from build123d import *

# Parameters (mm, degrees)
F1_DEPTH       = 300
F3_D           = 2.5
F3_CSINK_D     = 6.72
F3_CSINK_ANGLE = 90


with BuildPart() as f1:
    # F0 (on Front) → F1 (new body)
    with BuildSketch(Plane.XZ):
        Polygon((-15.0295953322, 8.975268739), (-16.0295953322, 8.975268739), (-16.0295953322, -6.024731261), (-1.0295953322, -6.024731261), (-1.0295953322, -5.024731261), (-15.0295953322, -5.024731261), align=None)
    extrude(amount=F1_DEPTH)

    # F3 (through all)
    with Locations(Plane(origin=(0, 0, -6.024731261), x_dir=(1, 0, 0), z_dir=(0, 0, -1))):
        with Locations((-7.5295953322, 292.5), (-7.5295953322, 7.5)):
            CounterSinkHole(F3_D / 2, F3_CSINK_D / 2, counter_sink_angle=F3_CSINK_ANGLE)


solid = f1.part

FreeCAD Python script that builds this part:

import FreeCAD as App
import Part
import Sketcher

V = App.Vector
Q = App.Units.Quantity


def add_polygon(sketch, points):
    """Adds a closed chain of lines whose ends are joined by coincident constraints."""
    first, n = sketch.GeometryCount, len(points)
    for a, b in zip(points, points[1:] + points[:1]):
        sketch.addGeometry(Part.LineSegment(App.Vector(*a, 0), App.Vector(*b, 0)), False)
    for i in range(n):
        sketch.addConstraint(Sketcher.Constraint("Coincident", first + i, 2, first + (i + 1) % n, 1))

doc = App.newDocument("Part")
body = doc.addObject("PartDesign::Body", "Body")

# Sketch on XZ plane
sketch1 = body.newObject("Sketcher::SketchObject", "Sketch")
sketch1.AttachmentSupport = (doc.getObject("XZ_Plane"), [""])
sketch1.MapMode = "FlatFace"
add_polygon(sketch1, [(-15, 9), (-16, 9), (-16, -6), (-1, -6), (-1, -5), (-15, -5)])  # lines 0-5
sketch1.addConstraint([
    Sketcher.Constraint("Horizontal", 0),
    Sketcher.Constraint("Vertical", 1),
    Sketcher.Constraint("Horizontal", 2),
    Sketcher.Constraint("Vertical", 3),
    Sketcher.Constraint("Horizontal", 4),
    Sketcher.Constraint("Vertical", 5),
    Sketcher.Constraint("Equal", 2, 1),
    Sketcher.Constraint("Equal", 0, 3),
    Sketcher.Constraint("DistanceX", 0, 2, 0, 1, Q("1 mm")),
    Sketcher.Constraint("DistanceX", 2, 1, 2, 2, Q("15 mm")),
    Sketcher.Constraint("DistanceY", -1, 1, 0, 2, Q("8.975269 mm")),
    Sketcher.Constraint("DistanceX", 0, 2, -1, 1, Q("16.029595 mm")),
])
pad1 = body.newObject("PartDesign::Pad", "Pad")
pad1.Profile = sketch1
pad1.Length = 300

# Sketch on XY plane
sketch2 = body.newObject("Sketcher::SketchObject", "Sketch001")
sketch2.AttachmentSupport = (doc.getObject("XY_Plane"), [""])
sketch2.MapMode = "FlatFace"
sketch2.AttachmentOffset = App.Placement(V(0, 0, -6.024731), App.Rotation())
sketch2.addGeometry([
    Part.Circle(V(-7.5, -292.5, 0), V(0, 0, 1), 1.2),
    Part.Circle(V(-7.5, -7.5, 0), V(0, 0, 1), 1.2),
], False)
sketch2.addConstraint([
    Sketcher.Constraint("Equal", 0, 1),
    Sketcher.Constraint("Vertical", 0, 3, 1, 3),
    Sketcher.Constraint("Diameter", 0, Q("2.5 mm")),
    Sketcher.Constraint("DistanceY", 0, 3, 1, 3, Q("285 mm")),
    Sketcher.Constraint("DistanceY", 0, 3, -1, 1, Q("292.5 mm")),
    Sketcher.Constraint("DistanceX", 0, 3, -1, 1, Q("7.529595 mm")),
])
doc.recompute()
hole = body.newObject("PartDesign::Hole", "Hole")
hole.Profile = sketch2
hole.ThreadType = "None"
hole.Diameter = 2.5
hole.DepthType = "ThroughAll"
hole.HoleCutType = "Countersink"
hole.HoleCutDiameter = 6.72
hole.HoleCutCountersinkAngle = 90
hole.Reversed = True

doc.recompute()
